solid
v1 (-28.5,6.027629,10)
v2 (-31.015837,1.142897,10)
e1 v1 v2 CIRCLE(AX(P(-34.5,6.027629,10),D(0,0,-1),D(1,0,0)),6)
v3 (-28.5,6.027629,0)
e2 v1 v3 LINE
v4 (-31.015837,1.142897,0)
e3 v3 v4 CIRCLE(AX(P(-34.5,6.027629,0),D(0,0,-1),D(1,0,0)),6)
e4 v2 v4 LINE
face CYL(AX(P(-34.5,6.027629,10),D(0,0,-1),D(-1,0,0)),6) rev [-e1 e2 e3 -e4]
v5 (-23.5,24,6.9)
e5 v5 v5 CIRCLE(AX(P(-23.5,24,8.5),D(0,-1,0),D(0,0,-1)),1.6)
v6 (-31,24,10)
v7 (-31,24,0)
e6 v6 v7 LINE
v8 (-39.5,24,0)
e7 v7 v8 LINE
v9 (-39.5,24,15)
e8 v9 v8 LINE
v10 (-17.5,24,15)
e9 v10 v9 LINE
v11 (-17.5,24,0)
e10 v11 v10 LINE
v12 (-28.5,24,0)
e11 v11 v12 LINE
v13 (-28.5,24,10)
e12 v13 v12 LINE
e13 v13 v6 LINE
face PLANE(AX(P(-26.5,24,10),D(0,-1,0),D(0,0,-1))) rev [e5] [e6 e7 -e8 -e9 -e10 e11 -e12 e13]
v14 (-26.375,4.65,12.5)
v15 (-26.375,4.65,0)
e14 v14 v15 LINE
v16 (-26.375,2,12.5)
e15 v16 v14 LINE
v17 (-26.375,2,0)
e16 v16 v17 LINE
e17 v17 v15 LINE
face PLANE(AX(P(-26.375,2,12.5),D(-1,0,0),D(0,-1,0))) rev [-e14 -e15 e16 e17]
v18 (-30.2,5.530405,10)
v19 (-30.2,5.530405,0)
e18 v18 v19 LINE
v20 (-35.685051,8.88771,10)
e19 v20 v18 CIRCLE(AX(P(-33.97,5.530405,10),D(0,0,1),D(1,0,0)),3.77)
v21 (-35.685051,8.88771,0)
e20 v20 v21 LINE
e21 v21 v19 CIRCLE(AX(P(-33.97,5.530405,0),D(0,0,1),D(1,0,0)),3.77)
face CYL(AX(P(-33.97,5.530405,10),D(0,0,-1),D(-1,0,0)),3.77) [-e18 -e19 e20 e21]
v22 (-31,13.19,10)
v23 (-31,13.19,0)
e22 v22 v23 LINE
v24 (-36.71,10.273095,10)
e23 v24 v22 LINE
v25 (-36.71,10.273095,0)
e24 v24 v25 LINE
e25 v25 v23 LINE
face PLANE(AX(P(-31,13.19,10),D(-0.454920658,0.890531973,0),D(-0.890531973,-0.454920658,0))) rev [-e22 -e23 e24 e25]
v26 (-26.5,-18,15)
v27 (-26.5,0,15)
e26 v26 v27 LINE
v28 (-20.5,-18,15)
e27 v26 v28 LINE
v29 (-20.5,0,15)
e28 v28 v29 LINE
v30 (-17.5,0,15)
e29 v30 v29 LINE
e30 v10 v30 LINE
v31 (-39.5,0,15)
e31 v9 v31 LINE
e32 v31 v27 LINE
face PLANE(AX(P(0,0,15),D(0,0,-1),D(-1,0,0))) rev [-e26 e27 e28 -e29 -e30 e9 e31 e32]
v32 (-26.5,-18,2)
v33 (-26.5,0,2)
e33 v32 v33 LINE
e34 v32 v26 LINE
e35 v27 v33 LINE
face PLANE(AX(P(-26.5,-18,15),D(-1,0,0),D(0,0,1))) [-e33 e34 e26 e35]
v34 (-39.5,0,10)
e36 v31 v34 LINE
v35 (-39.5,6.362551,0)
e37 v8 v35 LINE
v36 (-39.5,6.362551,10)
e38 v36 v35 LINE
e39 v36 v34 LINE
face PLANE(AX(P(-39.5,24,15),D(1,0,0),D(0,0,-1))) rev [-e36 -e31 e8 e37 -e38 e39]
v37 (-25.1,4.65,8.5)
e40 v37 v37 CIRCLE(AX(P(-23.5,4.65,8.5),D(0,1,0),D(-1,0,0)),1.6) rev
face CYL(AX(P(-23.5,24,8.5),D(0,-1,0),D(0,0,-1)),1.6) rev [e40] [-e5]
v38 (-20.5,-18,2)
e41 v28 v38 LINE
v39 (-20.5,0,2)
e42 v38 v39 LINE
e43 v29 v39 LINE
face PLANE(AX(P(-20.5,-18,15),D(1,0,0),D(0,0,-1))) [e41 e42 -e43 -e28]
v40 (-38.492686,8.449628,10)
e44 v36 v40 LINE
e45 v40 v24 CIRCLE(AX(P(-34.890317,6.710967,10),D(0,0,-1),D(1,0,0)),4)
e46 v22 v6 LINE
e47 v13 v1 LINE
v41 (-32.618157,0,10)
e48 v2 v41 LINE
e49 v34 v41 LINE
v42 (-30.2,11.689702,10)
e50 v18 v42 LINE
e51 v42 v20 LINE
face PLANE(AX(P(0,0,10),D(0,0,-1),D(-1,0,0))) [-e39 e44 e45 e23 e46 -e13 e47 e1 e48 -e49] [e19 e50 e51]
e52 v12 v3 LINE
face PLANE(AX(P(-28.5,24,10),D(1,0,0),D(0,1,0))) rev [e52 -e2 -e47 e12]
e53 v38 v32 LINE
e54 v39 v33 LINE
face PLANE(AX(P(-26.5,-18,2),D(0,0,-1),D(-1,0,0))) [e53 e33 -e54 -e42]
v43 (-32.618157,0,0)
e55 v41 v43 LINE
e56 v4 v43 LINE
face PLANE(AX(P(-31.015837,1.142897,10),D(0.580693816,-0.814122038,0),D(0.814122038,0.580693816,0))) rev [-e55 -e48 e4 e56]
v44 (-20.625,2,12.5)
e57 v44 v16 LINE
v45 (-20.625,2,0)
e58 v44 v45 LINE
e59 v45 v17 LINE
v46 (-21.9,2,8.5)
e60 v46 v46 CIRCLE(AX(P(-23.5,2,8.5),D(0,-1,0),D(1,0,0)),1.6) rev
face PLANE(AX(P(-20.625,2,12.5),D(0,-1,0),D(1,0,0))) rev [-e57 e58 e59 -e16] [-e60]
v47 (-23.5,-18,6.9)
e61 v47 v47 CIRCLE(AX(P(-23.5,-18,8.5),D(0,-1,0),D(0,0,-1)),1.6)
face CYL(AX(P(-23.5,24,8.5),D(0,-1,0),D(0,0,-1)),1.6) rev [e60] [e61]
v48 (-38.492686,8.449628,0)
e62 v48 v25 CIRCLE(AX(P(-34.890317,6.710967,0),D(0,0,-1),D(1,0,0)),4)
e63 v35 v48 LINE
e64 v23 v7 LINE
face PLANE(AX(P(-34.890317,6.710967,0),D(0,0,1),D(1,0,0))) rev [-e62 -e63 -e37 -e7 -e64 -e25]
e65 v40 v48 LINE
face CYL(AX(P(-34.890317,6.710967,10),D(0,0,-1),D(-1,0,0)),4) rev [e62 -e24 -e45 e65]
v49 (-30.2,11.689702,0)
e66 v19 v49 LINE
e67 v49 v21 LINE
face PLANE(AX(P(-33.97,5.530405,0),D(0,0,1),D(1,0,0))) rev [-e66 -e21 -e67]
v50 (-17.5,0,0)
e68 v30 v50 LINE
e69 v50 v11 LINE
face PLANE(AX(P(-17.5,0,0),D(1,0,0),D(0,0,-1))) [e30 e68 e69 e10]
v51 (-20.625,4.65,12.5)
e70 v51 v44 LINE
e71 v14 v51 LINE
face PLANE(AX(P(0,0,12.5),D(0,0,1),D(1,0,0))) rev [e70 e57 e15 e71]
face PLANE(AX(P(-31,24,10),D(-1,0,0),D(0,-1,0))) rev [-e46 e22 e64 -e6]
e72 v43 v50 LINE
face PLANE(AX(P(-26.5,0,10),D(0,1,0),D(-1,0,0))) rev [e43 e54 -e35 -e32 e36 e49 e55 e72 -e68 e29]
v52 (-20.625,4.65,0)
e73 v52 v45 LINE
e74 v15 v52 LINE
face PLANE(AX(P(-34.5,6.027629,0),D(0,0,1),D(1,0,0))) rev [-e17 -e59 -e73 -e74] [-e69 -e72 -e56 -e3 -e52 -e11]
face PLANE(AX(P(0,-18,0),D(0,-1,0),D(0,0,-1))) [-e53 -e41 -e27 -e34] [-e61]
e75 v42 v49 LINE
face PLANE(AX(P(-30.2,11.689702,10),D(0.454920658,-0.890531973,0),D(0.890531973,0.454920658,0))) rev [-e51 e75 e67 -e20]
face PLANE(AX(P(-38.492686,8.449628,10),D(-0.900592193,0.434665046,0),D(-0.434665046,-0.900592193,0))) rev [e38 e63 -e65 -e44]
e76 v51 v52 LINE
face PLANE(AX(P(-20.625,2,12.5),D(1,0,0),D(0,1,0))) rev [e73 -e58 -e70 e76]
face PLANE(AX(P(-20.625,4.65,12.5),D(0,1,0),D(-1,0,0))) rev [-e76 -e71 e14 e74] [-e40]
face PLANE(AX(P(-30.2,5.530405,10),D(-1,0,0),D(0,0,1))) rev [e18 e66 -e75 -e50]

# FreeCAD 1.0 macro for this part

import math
import FreeCAD as App
import Part
import Sketcher
from FreeCAD import Vector

doc = App.newDocument("Part")
body = doc.addObject("PartDesign::Body", "Body")

sketch1 = body.newObject("Sketcher::SketchObject", "Sketch")
sketch1.AttachmentSupport = (doc.getObject("XY_Plane"), [""])
sketch1.MapMode = "FlatFace"
sketch1.addGeometry(Part.LineSegment(Vector(-32.6, 0, 0), Vector(-26.5, 0, 0)), False)
sketch1.addGeometry(Part.LineSegment(Vector(-26.5, 0, 0), Vector(-26.5, 24, 0)), False)
sketch1.addGeometry(Part.LineSegment(Vector(-26.5, 24, 0), Vector(-28.5, 24, 0)), False)
sketch1.addGeometry(Part.LineSegment(Vector(-28.5, 24, 0), Vector(-28.5, 6, 0)), False)
sketch1.addGeometry(Part.ArcOfCircle(Part.Circle(Vector(-34.5, 6, 0), Vector(0, 0, 1), 6), math.radians(-55), math.radians(0)), False)
sketch1.addGeometry(Part.LineSegment(Vector(-31, 1.1, 0), Vector(-32.6, 0, 0)), False)
sketch1.addConstraint(Sketcher.Constraint("Coincident", 0, 2, 1, 1))
sketch1.addConstraint(Sketcher.Constraint("Coincident", 1, 2, 2, 1))
sketch1.addConstraint(Sketcher.Constraint("Coincident", 2, 2, 3, 1))
sketch1.addConstraint(Sketcher.Constraint("Tangent", 3, 2, 4, 2))
sketch1.addConstraint(Sketcher.Constraint("Tangent", 4, 1, 5, 1))
sketch1.addConstraint(Sketcher.Constraint("Coincident", 5, 2, 0, 1))
sketch1.addConstraint(Sketcher.Constraint("Horizontal", 0))
sketch1.addConstraint(Sketcher.Constraint("Vertical", 1))
sketch1.addConstraint(Sketcher.Constraint("Horizontal", 2))
sketch1.addConstraint(Sketcher.Constraint("Vertical", 3))
sketch1.addConstraint(Sketcher.Constraint("PointOnObject", 0, 2, -1))
sketch1.addConstraint(Sketcher.Constraint("Radius", 4, 6.0))
sketch1.addConstraint(Sketcher.Constraint("DistanceX", 2, 2, 2, 1, 2.0))
sketch1.addConstraint(Sketcher.Constraint("DistanceY", 1, 1, 1, 2, 24.0))
sketch1.addConstraint(Sketcher.Constraint("DistanceX", 4, 3, -1, 1, 34.5))
sketch1.addConstraint(Sketcher.Constraint("DistanceY", 3, 2, 3, 1, 17.972371))
sketch1.addConstraint(Sketcher.Constraint("DistanceX", 0, 1, 0, 2, 6.118157))
pad1 = body.newObject("PartDesign::Pad", "Pad")
pad1.Profile = sketch1
pad1.Length = 10
body2 = doc.addObject("PartDesign::Body", "Body001")

sketch2 = body2.newObject("Sketcher::SketchObject", "Sketch001")
sketch2.AttachmentSupport = (doc.getObject("XY_Plane001"), [""])
sketch2.MapMode = "FlatFace"
sketch2.addGeometry(Part.LineSegment(Vector(-31, 24, 0), Vector(-39.5, 24, 0)), False)
sketch2.addGeometry(Part.LineSegment(Vector(-39.5, 24, 0), Vector(-39.5, 6.4, 0)), False)
sketch2.addGeometry(Part.LineSegment(Vector(-39.5, 6.4, 0), Vector(-38.5, 8.4, 0)), False)
sketch2.addGeometry(Part.ArcOfCircle(Part.Circle(Vector(-34.9, 6.7, 0), Vector(0, 0, 1), 4), math.radians(117), math.radians(154)), False)
sketch2.addGeometry(Part.LineSegment(Vector(-36.7, 10.3, 0), Vector(-31, 13.2, 0)), False)
sketch2.addGeometry(Part.LineSegment(Vector(-31, 13.2, 0), Vector(-31, 24, 0)), False)
sketch2.addConstraint(Sketcher.Constraint("Coincident", 0, 2, 1, 1))
sketch2.addConstraint(Sketcher.Constraint("Coincident", 1, 2, 2, 1))
sketch2.addConstraint(Sketcher.Constraint("Tangent", 2, 2, 3, 2))
sketch2.addConstraint(Sketcher.Constraint("Tangent", 3, 1, 4, 1))
sketch2.addConstraint(Sketcher.Constraint("Coincident", 4, 2, 5, 1))
sketch2.addConstraint(Sketcher.Constraint("Coincident", 5, 2, 0, 1))
sketch2.addConstraint(Sketcher.Constraint("Horizontal", 0))
sketch2.addConstraint(Sketcher.Constraint("Vertical", 1))
sketch2.addConstraint(Sketcher.Constraint("Vertical", 5))
sketch2.addConstraint(Sketcher.Constraint("Radius", 3, 4.0))
sketch2.addConstraint(Sketcher.Constraint("DistanceX", 0, 2, 0, 1, 8.5))
sketch2.addConstraint(Sketcher.Constraint("DistanceY", -1, 1, 0, 2, 24.0))
sketch2.addConstraint(Sketcher.Constraint("DistanceX", 4, 2, -1, 1, 31.0))
sketch2.addConstraint(Sketcher.Constraint("DistanceY", 5, 1, 5, 2, 10.81))
sketch2.addConstraint(Sketcher.Constraint("DistanceX", 3, 1, -1, 1, 36.71))
sketch2.addConstraint(Sketcher.Constraint("DistanceY", 1, 2, 1, 1, 17.637449))
sketch2.addConstraint(Sketcher.Constraint("Distance", 2, 2.317449))
pad2 = body2.newObject("PartDesign::Pad", "Pad001")
pad2.Profile = sketch2
pad2.Length = 10
body3 = doc.addObject("PartDesign::Body", "Body002")

sketch3 = body3.newObject("Sketcher::SketchObject", "Sketch002")
sketch3.AttachmentSupport = (doc.getObject("XY_Plane002"), [""])
sketch3.MapMode = "FlatFace"
sketch3.addGeometry(Part.LineSegment(Vector(-30.2, 5.5, 0), Vector(-30.2, 11.7, 0)), False)
sketch3.addGeometry(Part.LineSegment(Vector(-30.2, 11.7, 0), Vector(-35.7, 8.9, 0)), False)
sketch3.addGeometry(Part.ArcOfCircle(Part.Circle(Vector(-34, 5.5, 0), Vector(0, 0, 1), 3.8), math.radians(117), math.radians(360)), False)
sketch3.addConstraint(Sketcher.Constraint("Coincident", 0, 2, 1, 1))
sketch3.addConstraint(Sketcher.Constraint("Tangent", 1, 2, 2, 1))
sketch3.addConstraint(Sketcher.Constraint("Tangent", 2, 2, 0, 1))
sketch3.addConstraint(Sketcher.Constraint("Vertical", 0))
sketch3.addConstraint(Sketcher.Constraint("Radius", 2, 3.77))
sketch3.addConstraint(Sketcher.Constraint("DistanceX", 0, 2, -1, 1, 30.2))
sketch3.addConstraint(Sketcher.Constraint("DistanceY", -1, 1, 0, 2, 11.689702))
sketch3.addConstraint(Sketcher.Constraint("DistanceY", 0, 1, 0, 2, 6.159297))
pad3 = body3.newObject("PartDesign::Pad", "Pad002")
pad3.Profile = sketch3
pad3.Length = 10
body.AllowCompound = True
doc.recompute()

boolean = body.newObject("PartDesign::Boolean", "Boolean")
boolean.Type = "Fuse"
boolean.addObjects([body2])
doc.recompute()

boolean2 = body.newObject("PartDesign::Boolean", "Boolean001")
boolean2.Type = "Fuse"
boolean2.addObjects([body3])

sketch4 = body.newObject("Sketcher::SketchObject", "Sketch003")
sketch4.AttachmentSupport = (doc.getObject("XY_Plane"), [""])
sketch4.MapMode = "FlatFace"
sketch4.AttachmentOffset = App.Placement(Vector(0, 0, 10), App.Rotation())
sketch4.addGeometry(Part.LineSegment(Vector(-40, 24, 0), Vector(-40, 0, 0)), False)
sketch4.addGeometry(Part.LineSegment(Vector(-40, 0, 0), Vector(-26, 0, 0)), False)
sketch4.addGeometry(Part.LineSegment(Vector(-26, 0, 0), Vector(-26, 24, 0)), False)
sketch4.addGeometry(Part.LineSegment(Vector(-26, 24, 0), Vector(-40, 24, 0)), False)
sketch4.addConstraint(Sketcher.Constraint("Coincident", 0, 2, 1, 1))
sketch4.addConstraint(Sketcher.Constraint("Coincident", 1, 2, 2, 1))
sketch4.addConstraint(Sketcher.Constraint("Coincident", 2, 2, 3, 1))
sketch4.addConstraint(Sketcher.Constraint("Coincident", 3, 2, 0, 1))
sketch4.addConstraint(Sketcher.Constraint("Vertical", 0))
sketch4.addConstraint(Sketcher.Constraint("Horizontal", 1))
sketch4.addConstraint(Sketcher.Constraint("Vertical", 2))
sketch4.addConstraint(Sketcher.Constraint("Horizontal", 3))
sketch4.addConstraint(Sketcher.Constraint("PointOnObject", 0, 2, -1))
sketch4.addConstraint(Sketcher.Constraint("DistanceX", 1, 1, 1, 2, 13.0))
sketch4.addConstraint(Sketcher.Constraint("DistanceY", 0, 2, 0, 1, 24.0))
sketch4.addConstraint(Sketcher.Constraint("DistanceX", 0, 2, -1, 1, 39.5))
pad4 = body.newObject("PartDesign::Pad", "Pad003")
pad4.Profile = sketch4
pad4.Length = 5

sketch5 = body.newObject("Sketcher::SketchObject", "Sketch004")
sketch5.AttachmentSupport = (doc.getObject("XZ_Plane"), [""])
sketch5.MapMode = "FlatFace"
sketch5.AttachmentOffset = App.Placement(Vector(0, 0, -24), App.Rotation())
sketch5.addGeometry(Part.LineSegment(Vector(-26, 2, 0), Vector(-26, 15, 0)), False)
sketch5.addGeometry(Part.LineSegment(Vector(-26, 15, 0), Vector(-20, 15, 0)), False)
sketch5.addGeometry(Part.LineSegment(Vector(-20, 15, 0), Vector(-20, 2, 0)), False)
sketch5.addGeometry(Part.LineSegment(Vector(-20, 2, 0), Vector(-26, 2, 0)), False)
sketch5.addConstraint(Sketcher.Constraint("Coincident", 0, 2, 1, 1))
sketch5.addConstraint(Sketcher.Constraint("Coincident", 1, 2, 2, 1))
sketch5.addConstraint(Sketcher.Constraint("Coincident", 2, 2, 3, 1))
sketch5.addConstraint(Sketcher.Constraint("Coincident", 3, 2, 0, 1))
sketch5.addConstraint(Sketcher.Constraint("Vertical", 0))
sketch5.addConstraint(Sketcher.Constraint("Horizontal", 1))
sketch5.addConstraint(Sketcher.Constraint("Vertical", 2))
sketch5.addConstraint(Sketcher.Constraint("Horizontal", 3))
sketch5.addConstraint(Sketcher.Constraint("DistanceX", 1, 1, 1, 2, 6.0))
sketch5.addConstraint(Sketcher.Constraint("DistanceY", 0, 1, 0, 2, 13.0))
sketch5.addConstraint(Sketcher.Constraint("DistanceY", -1, 1, 0, 2, 15.0))
sketch5.addConstraint(Sketcher.Constraint("DistanceX", 0, 2, -1, 1, 26.5))
pad5 = body.newObject("PartDesign::Pad", "Pad004")
pad5.Profile = sketch5
pad5.Length = 42

sketch6 = body.newObject("Sketcher::SketchObject", "Sketch005")
sketch6.AttachmentSupport = (doc.getObject("XY_Plane"), [""])
sketch6.MapMode = "FlatFace"
sketch6.AttachmentOffset = App.Placement(Vector(0, 0, 2), App.Rotation())
sketch6.addGeometry(Part.LineSegment(Vector(-20, 24, 0), Vector(-20, 0, 0)), False)
sketch6.addGeometry(Part.LineSegment(Vector(-20, 0, 0), Vector(-26, 0, 0)), False)
sketch6.addGeometry(Part.LineSegment(Vector(-26, 0, 0), Vector(-26, 24, 0)), False)
sketch6.addGeometry(Part.LineSegment(Vector(-26, 24, 0), Vector(-20, 24, 0)), False)
sketch6.addConstraint(Sketcher.Constraint("Coincident", 0, 2, 1, 1))
sketch6.addConstraint(Sketcher.Constraint("Coincident", 1, 2, 2, 1))
sketch6.addConstraint(Sketcher.Constraint("Coincident", 2, 2, 3, 1))
sketch6.addConstraint(Sketcher.Constraint("Coincident", 3, 2, 0, 1))
sketch6.addConstraint(Sketcher.Constraint("Vertical", 0))
sketch6.addConstraint(Sketcher.Constraint("Horizontal", 1))
sketch6.addConstraint(Sketcher.Constraint("Vertical", 2))
sketch6.addConstraint(Sketcher.Constraint("Horizontal", 3))
sketch6.addConstraint(Sketcher.Constraint("PointOnObject", 0, 2, -1))
sketch6.addConstraint(Sketcher.Constraint("DistanceX", 1, 2, 1, 1, 6.0))
sketch6.addConstraint(Sketcher.Constraint("DistanceY", 0, 2, 0, 1, 24.0))
sketch6.addConstraint(Sketcher.Constraint("DistanceX", 0, 2, -1, 1, 20.5))
pad6 = body.newObject("PartDesign::Pad", "Pad005")
pad6.Profile = sketch6
pad6.Length = 2
pad6.Reversed = True

sketch7 = body.newObject("Sketcher::SketchObject", "Sketch006")
sketch7.AttachmentSupport = (doc.getObject("XZ_Plane"), [""])
sketch7.MapMode = "FlatFace"
sketch7.AttachmentOffset = App.Placement(Vector(0, 0, 18), App.Rotation())
sketch7.addGeometry(Part.Circle(Vector(-23.5, 8.5, 0), Vector(0, 0, 1), 1.6), False)
sketch7.addConstraint(Sketcher.Constraint("Diameter", 0, 3.2))
sketch7.addConstraint(Sketcher.Constraint("DistanceX", 0, 3, -1, 1, 23.5))
sketch7.addConstraint(Sketcher.Constraint("DistanceY", -1, 1, 0, 3, 8.5))
pocket1 = body.newObject("PartDesign::Pocket", "Pocket")
pocket1.Profile = sketch7
pocket1.Type = "ThroughAll"

sketch8 = body.newObject("Sketcher::SketchObject", "Sketch007")
sketch8.AttachmentSupport = (doc.getObject("YZ_Plane"), [""])
sketch8.MapMode = "FlatFace"
sketch8.AttachmentOffset = App.Placement(Vector(0, 0, -20.5), App.Rotation())
sketch8.addGeometry(Part.LineSegment(Vector(24, 15, 0), Vector(0, 15, 0)), False)
sketch8.addGeometry(Part.LineSegment(Vector(0, 15, 0), Vector(0, 0, 0)), False)
sketch8.addGeometry(Part.LineSegment(Vector(0, 0, 0), Vector(24, 0, 0)), False)
sketch8.addGeometry(Part.LineSegment(Vector(24, 0, 0), Vector(24, 15, 0)), False)
sketch8.addConstraint(Sketcher.Constraint("Coincident", 0, 2, 1, 1))
sketch8.addConstraint(Sketcher.Constraint("Coincident", 1, 2, 2, 1))
sketch8.addConstraint(Sketcher.Constraint("Coincident", 2, 2, 3, 1))
sketch8.addConstraint(Sketcher.Constraint("Coincident", 3, 2, 0, 1))
sketch8.addConstraint(Sketcher.Constraint("Horizontal", 0))
sketch8.addConstraint(Sketcher.Constraint("Vertical", 1))
sketch8.addConstraint(Sketcher.Constraint("Horizontal", 2))
sketch8.addConstraint(Sketcher.Constraint("Vertical", 3))
sketch8.addConstraint(Sketcher.Constraint("Coincident", 1, 2, -1, 1))
sketch8.addConstraint(Sketcher.Constraint("DistanceX", 0, 2, 0, 1, 24.0))
sketch8.addConstraint(Sketcher.Constraint("DistanceY", 1, 2, 1, 1, 15.0))
pad7 = body.newObject("PartDesign::Pad", "Pad006")
pad7.Profile = sketch8
pad7.Length = 3

sketch9 = body.newObject("Sketcher::SketchObject", "Sketch008")
sketch9.AttachmentSupport = (doc.getObject("XY_Plane"), [""])
sketch9.MapMode = "FlatFace"
sketch9.addGeometry(Part.LineSegment(Vector(-20.6, 4.7, 0), Vector(-20.6, 2, 0)), False)
sketch9.addGeometry(Part.LineSegment(Vector(-20.6, 2, 0), Vector(-26.4, 2, 0)), False)
sketch9.addGeometry(Part.LineSegment(Vector(-26.4, 2, 0), Vector(-26.4, 4.7, 0)), False)
sketch9.addGeometry(Part.LineSegment(Vector(-26.4, 4.7, 0), Vector(-20.6, 4.7, 0)), False)
sketch9.addConstraint(Sketcher.Constraint("Coincident", 0, 2, 1, 1))
sketch9.addConstraint(Sketcher.Constraint("Coincident", 1, 2, 2, 1))
sketch9.addConstraint(Sketcher.Constraint("Coincident", 2, 2, 3, 1))
sketch9.addConstraint(Sketcher.Constraint("Coincident", 3, 2, 0, 1))
sketch9.addConstraint(Sketcher.Constraint("Vertical", 0))
sketch9.addConstraint(Sketcher.Constraint("Horizontal", 1))
sketch9.addConstraint(Sketcher.Constraint("Vertical", 2))
sketch9.addConstraint(Sketcher.Constraint("Horizontal", 3))
sketch9.addConstraint(Sketcher.Constraint("DistanceY", -1, 1, 0, 2, 2.0))
sketch9.addConstraint(Sketcher.Constraint("DistanceX", 1, 2, 1, 1, 5.75))
sketch9.addConstraint(Sketcher.Constraint("DistanceY", 0, 2, 0, 1, 2.65))
sketch9.addConstraint(Sketcher.Constraint("DistanceX", 0, 2, -1, 1, 20.625))
pocket2 = body.newObject("PartDesign::Pocket", "Pocket001")
pocket2.Profile = sketch9
pocket2.Length = 12.5
pocket2.Reversed = True

doc.recompute()
